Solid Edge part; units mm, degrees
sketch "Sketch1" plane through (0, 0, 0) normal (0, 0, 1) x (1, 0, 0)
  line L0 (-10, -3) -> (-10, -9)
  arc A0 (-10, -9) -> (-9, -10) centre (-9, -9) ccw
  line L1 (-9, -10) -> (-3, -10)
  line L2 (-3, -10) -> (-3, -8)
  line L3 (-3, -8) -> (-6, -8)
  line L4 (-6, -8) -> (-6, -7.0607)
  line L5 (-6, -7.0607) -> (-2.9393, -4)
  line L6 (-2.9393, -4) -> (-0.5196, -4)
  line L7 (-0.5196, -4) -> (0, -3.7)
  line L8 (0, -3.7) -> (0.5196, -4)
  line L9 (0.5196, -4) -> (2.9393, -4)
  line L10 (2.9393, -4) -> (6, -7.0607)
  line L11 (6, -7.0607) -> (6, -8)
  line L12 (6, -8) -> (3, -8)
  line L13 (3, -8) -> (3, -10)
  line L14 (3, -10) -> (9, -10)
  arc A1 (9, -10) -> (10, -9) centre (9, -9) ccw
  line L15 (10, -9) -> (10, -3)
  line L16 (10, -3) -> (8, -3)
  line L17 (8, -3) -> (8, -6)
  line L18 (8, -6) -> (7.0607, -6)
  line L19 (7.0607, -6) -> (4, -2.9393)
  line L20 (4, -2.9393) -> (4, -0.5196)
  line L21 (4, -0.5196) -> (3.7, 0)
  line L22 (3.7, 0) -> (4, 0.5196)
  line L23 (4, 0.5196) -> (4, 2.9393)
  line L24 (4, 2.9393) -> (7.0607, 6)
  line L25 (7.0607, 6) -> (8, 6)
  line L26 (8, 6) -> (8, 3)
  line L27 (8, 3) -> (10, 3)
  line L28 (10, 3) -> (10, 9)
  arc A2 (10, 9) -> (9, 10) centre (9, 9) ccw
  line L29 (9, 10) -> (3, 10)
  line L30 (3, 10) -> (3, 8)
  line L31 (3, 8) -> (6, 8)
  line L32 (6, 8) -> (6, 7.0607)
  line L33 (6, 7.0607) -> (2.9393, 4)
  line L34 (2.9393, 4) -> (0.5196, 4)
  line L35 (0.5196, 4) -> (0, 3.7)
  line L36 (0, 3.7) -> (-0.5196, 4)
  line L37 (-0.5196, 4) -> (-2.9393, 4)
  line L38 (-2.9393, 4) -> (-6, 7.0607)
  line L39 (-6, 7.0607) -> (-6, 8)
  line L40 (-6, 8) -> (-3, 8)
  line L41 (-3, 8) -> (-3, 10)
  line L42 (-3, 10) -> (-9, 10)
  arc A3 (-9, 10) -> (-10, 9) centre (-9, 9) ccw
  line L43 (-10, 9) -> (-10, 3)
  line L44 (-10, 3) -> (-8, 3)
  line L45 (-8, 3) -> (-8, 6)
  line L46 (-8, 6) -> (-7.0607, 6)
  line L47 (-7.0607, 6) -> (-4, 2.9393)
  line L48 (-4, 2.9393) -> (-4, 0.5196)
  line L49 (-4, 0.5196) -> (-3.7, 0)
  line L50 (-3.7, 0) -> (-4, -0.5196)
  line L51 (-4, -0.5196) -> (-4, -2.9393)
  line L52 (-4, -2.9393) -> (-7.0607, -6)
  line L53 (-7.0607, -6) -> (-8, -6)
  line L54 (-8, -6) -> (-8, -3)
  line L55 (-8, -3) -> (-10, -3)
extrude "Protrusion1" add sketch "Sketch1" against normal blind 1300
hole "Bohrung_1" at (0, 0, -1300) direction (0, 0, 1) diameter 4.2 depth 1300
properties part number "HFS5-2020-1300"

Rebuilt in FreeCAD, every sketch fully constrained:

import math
import FreeCAD as App
import Part
import Sketcher

V = App.Vector
Q = App.Units.Quantity

doc = App.newDocument("Part")
params = doc.addObject("Spreadsheet::Sheet", "Params")
for row, (alias, value) in enumerate([
    ("sketch1_radius", "1 mm"),
    ("sketch1_width", "2 mm"),
    ("sketch1_width2", "6 mm"),
    ("sketch1_width3", "3 mm"),
    ("sketch1_length", "0.6 mm"),
    ("pad1_length", "1300 mm"),
    ("sketch2_diameter", "4.2 mm"),
    ("hole_diameter", "4.2 mm"),
    ("hole_depth", "1300 mm"),
], start=1):
    params.set(f"A{row}", alias)
    params.set(f"B{row}", "=" + value)
    params.setAlias(f"B{row}", alias)

body = doc.addObject("PartDesign::Body", "Body")

# Sketch on XY plane
sketch1 = body.newObject("Sketcher::SketchObject", "Sketch")
sketch1.AttachmentSupport = (doc.getObject("XY_Plane"), [""])
sketch1.MapMode = "FlatFace"
sketch1.addGeometry([
    Part.LineSegment(V(-8, -3, 0), V(-10, -3, 0)),  # 0
    Part.LineSegment(V(-10, -3, 0), V(-10, -9, 0)),  # 1
    Part.ArcOfCircle(Part.Circle(V(-9, -9, 0), V(0, 0, 1), 1), math.radians(180), math.radians(270)),  # 2
    Part.LineSegment(V(-9, -10, 0), V(-3, -10, 0)),  # 3
    Part.LineSegment(V(-3, -10, 0), V(-3, -8, 0)),  # 4
    Part.LineSegment(V(-3, -8, 0), V(-6, -8, 0)),  # 5
    Part.LineSegment(V(-6, -8, 0), V(-6, -7.1, 0)),  # 6
    Part.LineSegment(V(-6, -7.1, 0), V(-2.9, -4, 0)),  # 7
    Part.LineSegment(V(-2.9, -4, 0), V(-0.5, -4, 0)),  # 8
    Part.LineSegment(V(-0.5, -4, 0), V(0, -3.7, 0)),  # 9
    Part.LineSegment(V(0, -3.7, 0), V(0.5, -4, 0)),  # 10
    Part.LineSegment(V(0.5, -4, 0), V(2.9, -4, 0)),  # 11
    Part.LineSegment(V(2.9, -4, 0), V(6, -7.1, 0)),  # 12
    Part.LineSegment(V(6, -7.1, 0), V(6, -8, 0)),  # 13
    Part.LineSegment(V(6, -8, 0), V(3, -8, 0)),  # 14
    Part.LineSegment(V(3, -8, 0), V(3, -10, 0)),  # 15
    Part.LineSegment(V(3, -10, 0), V(9, -10, 0)),  # 16
    Part.ArcOfCircle(Part.Circle(V(9, -9, 0), V(0, 0, 1), 1), math.radians(-90), math.radians(0)),  # 17
    Part.LineSegment(V(10, -9, 0), V(10, -3, 0)),  # 18
    Part.LineSegment(V(10, -3, 0), V(8, -3, 0)),  # 19
    Part.LineSegment(V(8, -3, 0), V(8, -6, 0)),  # 20
    Part.LineSegment(V(8, -6, 0), V(7.1, -6, 0)),  # 21
    Part.LineSegment(V(7.1, -6, 0), V(4, -2.9, 0)),  # 22
    Part.LineSegment(V(4, -2.9, 0), V(4, -0.5, 0)),  # 23
    Part.LineSegment(V(4, -0.5, 0), V(3.7, 0, 0)),  # 24
    Part.LineSegment(V(3.7, 0, 0), V(4, 0.5, 0)),  # 25
    Part.LineSegment(V(4, 0.5, 0), V(4, 2.9, 0)),  # 26
    Part.LineSegment(V(4, 2.9, 0), V(7.1, 6, 0)),  # 27
    Part.LineSegment(V(7.1, 6, 0), V(8, 6, 0)),  # 28
    Part.LineSegment(V(8, 6, 0), V(8, 3, 0)),  # 29
    Part.LineSegment(V(8, 3, 0), V(10, 3, 0)),  # 30
    Part.LineSegment(V(10, 3, 0), V(10, 9, 0)),  # 31
    Part.ArcOfCircle(Part.Circle(V(9, 9, 0), V(0, 0, 1), 1), math.radians(0), math.radians(90)),  # 32
    Part.LineSegment(V(9, 10, 0), V(3, 10, 0)),  # 33
    Part.LineSegment(V(3, 10, 0), V(3, 8, 0)),  # 34
    Part.LineSegment(V(3, 8, 0), V(6, 8, 0)),  # 35
    Part.LineSegment(V(6, 8, 0), V(6, 7.1, 0)),  # 36
    Part.LineSegment(V(6, 7.1, 0), V(2.9, 4, 0)),  # 37
    Part.LineSegment(V(2.9, 4, 0), V(0.5, 4, 0)),  # 38
    Part.LineSegment(V(0.5, 4, 0), V(0, 3.7, 0)),  # 39
    Part.LineSegment(V(0, 3.7, 0), V(-0.5, 4, 0)),  # 40
    Part.LineSegment(V(-0.5, 4, 0), V(-2.9, 4, 0)),  # 41
    Part.LineSegment(V(-2.9, 4, 0), V(-6, 7.1, 0)),  # 42
    Part.LineSegment(V(-6, 7.1, 0), V(-6, 8, 0)),  # 43
    Part.LineSegment(V(-6, 8, 0), V(-3, 8, 0)),  # 44
    Part.LineSegment(V(-3, 8, 0), V(-3, 10, 0)),  # 45
    Part.LineSegment(V(-3, 10, 0), V(-9, 10, 0)),  # 46
    Part.ArcOfCircle(Part.Circle(V(-9, 9, 0), V(0, 0, 1), 1), math.radians(90), math.radians(180)),  # 47
    Part.LineSegment(V(-10, 9, 0), V(-10, 3, 0)),  # 48
    Part.LineSegment(V(-10, 3, 0), V(-8, 3, 0)),  # 49
    Part.LineSegment(V(-8, 3, 0), V(-8, 6, 0)),  # 50
    Part.LineSegment(V(-8, 6, 0), V(-7.1, 6, 0)),  # 51
    Part.LineSegment(V(-7.1, 6, 0), V(-4, 2.9, 0)),  # 52
    Part.LineSegment(V(-4, 2.9, 0), V(-4, 0.5, 0)),  # 53
    Part.LineSegment(V(-4, 0.5, 0), V(-3.7, 0, 0)),  # 54
    Part.LineSegment(V(-3.7, 0, 0), V(-4, -0.5, 0)),  # 55
    Part.LineSegment(V(-4, -0.5, 0), V(-4, -2.9, 0)),  # 56
    Part.LineSegment(V(-4, -2.9, 0), V(-7.1, -6, 0)),  # 57
    Part.LineSegment(V(-7.1, -6, 0), V(-8, -6, 0)),  # 58
    Part.LineSegment(V(-8, -6, 0), V(-8, -3, 0)),  # 59
], False)
sketch1.addConstraint([
    Sketcher.Constraint("Coincident", 0, 2, 1, 1),
    Sketcher.Constraint("Tangent", 1, 2, 2, 1),
    Sketcher.Constraint("Tangent", 2, 2, 3, 1),
    Sketcher.Constraint("Coincident", 3, 2, 4, 1),
    Sketcher.Constraint("Coincident", 4, 2, 5, 1),
    Sketcher.Constraint("Coincident", 5, 2, 6, 1),
    Sketcher.Constraint("Coincident", 6, 2, 7, 1),
    Sketcher.Constraint("Coincident", 7, 2, 8, 1),
    Sketcher.Constraint("Coincident", 8, 2, 9, 1),
    Sketcher.Constraint("Coincident", 9, 2, 10, 1),
    Sketcher.Constraint("Coincident", 10, 2, 11, 1),
    Sketcher.Constraint("Coincident", 11, 2, 12, 1),
    Sketcher.Constraint("Coincident", 12, 2, 13, 1),
    Sketcher.Constraint("Coincident", 13, 2, 14, 1),
    Sketcher.Constraint("Coincident", 14, 2, 15, 1),
    Sketcher.Constraint("Coincident", 15, 2, 16, 1),
    Sketcher.Constraint("Tangent", 16, 2, 17, 1),
    Sketcher.Constraint("Tangent", 17, 2, 18, 1),
    Sketcher.Constraint("Coincident", 18, 2, 19, 1),
    Sketcher.Constraint("Coincident", 19, 2, 20, 1),
    Sketcher.Constraint("Coincident", 20, 2, 21, 1),
    Sketcher.Constraint("Coincident", 21, 2, 22, 1),
    Sketcher.Constraint("Coincident", 22, 2, 23, 1),
    Sketcher.Constraint("Coincident", 23, 2, 24, 1),
    Sketcher.Constraint("Coincident", 24, 2, 25, 1),
    Sketcher.Constraint("Coincident", 25, 2, 26, 1),
    Sketcher.Constraint("Coincident", 26, 2, 27, 1),
    Sketcher.Constraint("Coincident", 27, 2, 28, 1),
    Sketcher.Constraint("Coincident", 28, 2, 29, 1),
    Sketcher.Constraint("Coincident", 29, 2, 30, 1),
    Sketcher.Constraint("Coincident", 30, 2, 31, 1),
    Sketcher.Constraint("Tangent", 31, 2, 32, 1),
    Sketcher.Constraint("Tangent", 32, 2, 33, 1),
    Sketcher.Constraint("Coincident", 33, 2, 34, 1),
    Sketcher.Constraint("Coincident", 34, 2, 35, 1),
    Sketcher.Constraint("Coincident", 35, 2, 36, 1),
    Sketcher.Constraint("Coincident", 36, 2, 37, 1),
    Sketcher.Constraint("Coincident", 37, 2, 38, 1),
    Sketcher.Constraint("Coincident", 38, 2, 39, 1),
    Sketcher.Constraint("Coincident", 39, 2, 40, 1),
    Sketcher.Constraint("Coincident", 40, 2, 41, 1),
    Sketcher.Constraint("Coincident", 41, 2, 42, 1),
    Sketcher.Constraint("Coincident", 42, 2, 43, 1),
    Sketcher.Constraint("Coincident", 43, 2, 44, 1),
    Sketcher.Constraint("Coincident", 44, 2, 45, 1),
    Sketcher.Constraint("Coincident", 45, 2, 46, 1),
    Sketcher.Constraint("Tangent", 46, 2, 47, 1),
    Sketcher.Constraint("Tangent", 47, 2, 48, 1),
    Sketcher.Constraint("Coincident", 48, 2, 49, 1),
    Sketcher.Constraint("Coincident", 49, 2, 50, 1),
    Sketcher.Constraint("Coincident", 50, 2, 51, 1),
    Sketcher.Constraint("Coincident", 51, 2, 52, 1),
    Sketcher.Constraint("Coincident", 52, 2, 53, 1),
    Sketcher.Constraint("Coincident", 53, 2, 54, 1),
    Sketcher.Constraint("Coincident", 54, 2, 55, 1),
    Sketcher.Constraint("Coincident", 55, 2, 56, 1),
    Sketcher.Constraint("Coincident", 56, 2, 57, 1),
    Sketcher.Constraint("Coincident", 57, 2, 58, 1),
    Sketcher.Constraint("Coincident", 58, 2, 59, 1),
    Sketcher.Constraint("Coincident", 59, 2, 0, 1),
    Sketcher.Constraint("Horizontal", 0),
    Sketcher.Constraint("Vertical", 1),
    Sketcher.Constraint("Horizontal", 3),
    Sketcher.Constraint("Vertical", 4),
    Sketcher.Constraint("Horizontal", 5),
    Sketcher.Constraint("Vertical", 6),
    Sketcher.Constraint("Horizontal", 8),
    Sketcher.Constraint("Horizontal", 11),
    Sketcher.Constraint("Vertical", 13),
    Sketcher.Constraint("Horizontal", 14),
    Sketcher.Constraint("Vertical", 15),
    Sketcher.Constraint("Horizontal", 16),
    Sketcher.Constraint("Vertical", 18),
    Sketcher.Constraint("Horizontal", 19),
    Sketcher.Constraint("Vertical", 20),
    Sketcher.Constraint("Horizontal", 21),
    Sketcher.Constraint("Vertical", 23),
    Sketcher.Constraint("Vertical", 26),
    Sketcher.Constraint("Horizontal", 28),
    Sketcher.Constraint("Vertical", 29),
    Sketcher.Constraint("Horizontal", 30),
    Sketcher.Constraint("Vertical", 31),
    Sketcher.Constraint("Horizontal", 33),
    Sketcher.Constraint("Vertical", 34),
    Sketcher.Constraint("Horizontal", 35),
    Sketcher.Constraint("Vertical", 36),
    Sketcher.Constraint("Horizontal", 38),
    Sketcher.Constraint("Horizontal", 41),
    Sketcher.Constraint("Vertical", 43),
    Sketcher.Constraint("Horizontal", 44),
    Sketcher.Constraint("Vertical", 45),
    Sketcher.Constraint("Horizontal", 46),
    Sketcher.Constraint("Vertical", 48),
    Sketcher.Constraint("Horizontal", 49),
    Sketcher.Constraint("Vertical", 50),
    Sketcher.Constraint("Horizontal", 51),
    Sketcher.Constraint("Vertical", 53),
    Sketcher.Constraint("Vertical", 56),
    Sketcher.Constraint("Horizontal", 58),
    Sketcher.Constraint("Vertical", 59),
    Sketcher.Constraint("Equal", 2, 17),
    Sketcher.Constraint("Equal", 17, 32),
    Sketcher.Constraint("Equal", 32, 47),
    Sketcher.Constraint("Symmetric", 2, 3, 32, 3, -1, 1),
    Sketcher.Constraint("Symmetric", 17, 3, 47, 3, -1, 1),
    Sketcher.Constraint("Symmetric", 4, 2, 34, 2, -1, 1),
    Sketcher.Constraint("Symmetric", 6, 2, 36, 2, -1, 1),
    Sketcher.Constraint("Symmetric", 7, 2, 37, 2, -1, 1),
    Sketcher.Constraint("Symmetric", 9, 2, 39, 2, -1, 1),
    Sketcher.Constraint("Symmetric", 10, 2, 40, 2, -1, 1),
    Sketcher.Constraint("Symmetric", 12, 2, 42, 2, -1, 1),
    Sketcher.Constraint("Symmetric", 14, 2, 44, 2, -1, 1),
    Sketcher.Constraint("Symmetric", 19, 2, 49, 2, -1, 1),
    Sketcher.Constraint("Symmetric", 21, 2, 51, 2, -1, 1),
    Sketcher.Constraint("Symmetric", 22, 2, 52, 2, -1, 1),
    Sketcher.Constraint("Symmetric", 24, 2, 54, 2, -1, 1),
    Sketcher.Constraint("Symmetric", 25, 2, 55, 2, -1, 1),
    Sketcher.Constraint("Symmetric", 27, 2, 57, 2, -1, 1),
    Sketcher.Constraint("Symmetric", 29, 2, 59, 2, -1, 1),
    Sketcher.Constraint("Symmetric", 2, 3, 17, 3, -2),
    Sketcher.Constraint("Symmetric", 8, 2, 10, 2, -2),
    Sketcher.Constraint("Symmetric", 6, 2, 12, 2, -2),
    Sketcher.Constraint("Symmetric", 4, 2, 14, 2, -2),
    Sketcher.Constraint("Symmetric", 29, 2, 49, 2, -2),
    Sketcher.Constraint("Symmetric", 27, 2, 51, 2, -2),
    Sketcher.Constraint("Symmetric", 26, 2, 52, 2, -2),
    Sketcher.Constraint("PointOnObject", 9, 2, -2),
    Sketcher.Constraint("PointOnObject", 24, 2, -1),
    Sketcher.Constraint("Perpendicular", 7, 12),
    Sketcher.Constraint("Parallel", 12, 22),
    Sketcher.Constraint("Perpendicular", 9, 24),
    Sketcher.Constraint("Perpendicular", 10, 25),
    Sketcher.Constraint("Perpendicular", 22, 27),
    Sketcher.Constraint("Perpendicular", 24, 39),
    Sketcher.Constraint("Perpendicular", 37, 42),
    Sketcher.Constraint("Perpendicular", 39, 54),
    Sketcher.Constraint("Perpendicular", 52, 57),
    Sketcher.Constraint("Equal", 46, 1),
    Sketcher.Constraint("Equal", 49, 4),
    Sketcher.Constraint("Equal", 58, 6),
    Sketcher.Constraint("Equal", 44, 20),
    Sketcher.Constraint("Equal", 41, 23),
    Sketcher.Constraint("Equal", 12, 22),
    Sketcher.Constraint("Equal", 10, 24),
    Sketcher.Constraint("Radius", 2, Q("1 mm")),
    Sketcher.Constraint("DistanceX", 0, 2, 0, 1, Q("2 mm")),
    Sketcher.Constraint("DistanceX", 3, 1, 3, 2, Q("6 mm")),
    Sketcher.Constraint("DistanceX", 5, 2, 5, 1, Q("3 mm")),
    Sketcher.Constraint("Angle", 9, Q("30.0007 deg")),
    Sketcher.Constraint("DistanceX", 2, 3, -1, 1, Q("9 mm")),
    Sketcher.Constraint("DistanceY", 7, 2, -1, 1, Q("4 mm")),
    Sketcher.Constraint("Distance", 9, Q("0.6 mm")),
    Sketcher.Constraint("DistanceX", 8, 1, 8, 2, Q("2.4197 mm")),
])
sketch1.setExpression("Constraints[144]", "Params.sketch1_radius")
sketch1.setExpression("Constraints[145]", "Params.sketch1_width")
sketch1.setExpression("Constraints[146]", "Params.sketch1_width2")
sketch1.setExpression("Constraints[147]", "Params.sketch1_width3")
sketch1.setExpression("Constraints[151]", "Params.sketch1_length")
pad1 = body.newObject("PartDesign::Pad", "Pad")
pad1.Profile = sketch1
pad1.setExpression("Length", "Params.pad1_length")
pad1.Reversed = True

# Sketch on XY plane
sketch2 = body.newObject("Sketcher::SketchObject", "Sketch001")
sketch2.AttachmentSupport = (doc.getObject("XY_Plane"), [""])
sketch2.MapMode = "FlatFace"
sketch2.AttachmentOffset = App.Placement(V(0, 0, -1300), App.Rotation())
sketch2.addGeometry(Part.Circle(V(0, 0, 0), V(0, 0, 1), 2.1), False)
sketch2.addConstraint([
    Sketcher.Constraint("Coincident", 0, 3, -1, 1),
    Sketcher.Constraint("Diameter", 0, Q("4.2 mm")),
])
sketch2.setExpression("Constraints[1]", "Params.sketch2_diameter")
doc.recompute()
hole = body.newObject("PartDesign::Hole", "Hole")
hole.Profile = sketch2
hole.ThreadType = "None"
hole.setExpression("Diameter", "Params.hole_diameter")
hole.DepthType = "Dimension"
hole.setExpression("Depth", "Params.hole_depth")
hole.DrillPoint = "Flat"
hole.Reversed = True

doc.recompute()
